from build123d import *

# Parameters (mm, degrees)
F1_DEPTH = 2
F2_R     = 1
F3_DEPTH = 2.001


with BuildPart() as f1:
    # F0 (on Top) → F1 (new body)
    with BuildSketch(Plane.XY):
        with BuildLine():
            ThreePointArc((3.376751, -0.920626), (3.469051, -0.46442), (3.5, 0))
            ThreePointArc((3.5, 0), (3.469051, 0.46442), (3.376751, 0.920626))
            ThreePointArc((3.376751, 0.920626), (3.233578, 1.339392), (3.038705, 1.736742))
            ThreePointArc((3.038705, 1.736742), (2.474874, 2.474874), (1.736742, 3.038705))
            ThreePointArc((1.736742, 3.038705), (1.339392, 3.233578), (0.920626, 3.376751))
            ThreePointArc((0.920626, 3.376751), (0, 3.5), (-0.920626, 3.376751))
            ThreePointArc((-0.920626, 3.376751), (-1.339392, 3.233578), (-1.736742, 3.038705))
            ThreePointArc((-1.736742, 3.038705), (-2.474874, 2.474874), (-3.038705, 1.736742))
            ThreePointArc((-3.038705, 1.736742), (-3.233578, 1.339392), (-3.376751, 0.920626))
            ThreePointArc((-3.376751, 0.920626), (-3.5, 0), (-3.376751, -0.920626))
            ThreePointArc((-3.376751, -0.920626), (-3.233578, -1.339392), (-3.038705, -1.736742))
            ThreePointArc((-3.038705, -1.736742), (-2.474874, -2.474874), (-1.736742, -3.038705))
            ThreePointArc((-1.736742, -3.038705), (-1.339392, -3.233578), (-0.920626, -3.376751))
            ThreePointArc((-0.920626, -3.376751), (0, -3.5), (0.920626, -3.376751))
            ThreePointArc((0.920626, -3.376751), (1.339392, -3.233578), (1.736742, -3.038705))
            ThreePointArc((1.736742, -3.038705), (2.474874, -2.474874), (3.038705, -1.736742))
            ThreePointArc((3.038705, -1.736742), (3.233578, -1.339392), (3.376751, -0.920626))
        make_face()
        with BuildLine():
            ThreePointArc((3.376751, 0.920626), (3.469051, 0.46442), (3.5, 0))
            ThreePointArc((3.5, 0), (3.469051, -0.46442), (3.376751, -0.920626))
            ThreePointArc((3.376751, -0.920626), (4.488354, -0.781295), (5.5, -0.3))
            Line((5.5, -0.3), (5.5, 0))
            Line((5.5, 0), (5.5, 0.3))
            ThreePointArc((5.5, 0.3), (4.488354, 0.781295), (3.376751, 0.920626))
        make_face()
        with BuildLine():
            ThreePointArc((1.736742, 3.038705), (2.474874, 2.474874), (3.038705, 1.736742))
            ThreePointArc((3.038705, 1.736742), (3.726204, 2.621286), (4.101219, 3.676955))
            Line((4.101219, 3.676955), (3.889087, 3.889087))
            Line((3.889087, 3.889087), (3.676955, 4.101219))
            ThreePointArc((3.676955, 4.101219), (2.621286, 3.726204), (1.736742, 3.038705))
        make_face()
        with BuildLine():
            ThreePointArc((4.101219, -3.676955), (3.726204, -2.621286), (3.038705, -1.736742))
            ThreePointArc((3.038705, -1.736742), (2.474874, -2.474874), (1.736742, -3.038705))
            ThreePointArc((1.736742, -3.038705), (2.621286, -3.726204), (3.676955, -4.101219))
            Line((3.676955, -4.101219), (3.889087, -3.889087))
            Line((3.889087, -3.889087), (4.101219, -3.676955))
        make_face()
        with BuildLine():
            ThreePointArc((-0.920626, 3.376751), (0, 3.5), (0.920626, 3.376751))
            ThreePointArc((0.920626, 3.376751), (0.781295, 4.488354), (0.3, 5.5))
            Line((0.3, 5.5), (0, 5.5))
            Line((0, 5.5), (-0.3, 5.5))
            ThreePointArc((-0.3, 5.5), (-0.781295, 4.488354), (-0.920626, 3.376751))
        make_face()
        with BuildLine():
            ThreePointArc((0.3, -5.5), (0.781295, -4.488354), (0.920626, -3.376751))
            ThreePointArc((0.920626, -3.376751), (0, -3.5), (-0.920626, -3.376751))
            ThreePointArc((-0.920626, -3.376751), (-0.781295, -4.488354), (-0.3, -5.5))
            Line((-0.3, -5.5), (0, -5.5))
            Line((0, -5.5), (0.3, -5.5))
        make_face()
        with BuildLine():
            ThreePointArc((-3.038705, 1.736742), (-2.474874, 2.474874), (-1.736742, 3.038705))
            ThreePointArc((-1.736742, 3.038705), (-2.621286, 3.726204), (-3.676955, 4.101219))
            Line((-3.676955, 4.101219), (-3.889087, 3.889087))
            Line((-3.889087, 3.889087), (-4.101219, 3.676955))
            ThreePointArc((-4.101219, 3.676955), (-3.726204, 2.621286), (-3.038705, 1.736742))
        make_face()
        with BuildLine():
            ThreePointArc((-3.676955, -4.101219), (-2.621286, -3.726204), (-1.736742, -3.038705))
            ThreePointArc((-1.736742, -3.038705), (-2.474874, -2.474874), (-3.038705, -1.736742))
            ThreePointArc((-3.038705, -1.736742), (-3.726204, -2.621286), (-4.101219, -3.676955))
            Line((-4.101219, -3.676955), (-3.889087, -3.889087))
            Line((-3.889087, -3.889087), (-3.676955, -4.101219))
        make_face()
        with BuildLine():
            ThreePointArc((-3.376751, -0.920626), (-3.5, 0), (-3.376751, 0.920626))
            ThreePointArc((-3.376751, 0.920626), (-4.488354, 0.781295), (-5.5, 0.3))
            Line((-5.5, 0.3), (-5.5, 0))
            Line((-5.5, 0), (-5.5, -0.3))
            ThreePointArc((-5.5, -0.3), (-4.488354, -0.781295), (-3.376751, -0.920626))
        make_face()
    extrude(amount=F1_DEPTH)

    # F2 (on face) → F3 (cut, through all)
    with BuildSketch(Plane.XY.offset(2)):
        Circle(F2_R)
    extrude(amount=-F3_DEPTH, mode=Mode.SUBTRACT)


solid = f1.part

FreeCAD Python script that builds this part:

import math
import FreeCAD as App
import Part
import Sketcher

doc = App.newDocument("Part")
body = doc.addObject("PartDesign::Body", "Body")

# Sketch on XY plane
sketch1 = body.newObject("Sketcher::SketchObject", "Sketch")
sketch1.AttachmentSupport = (doc.getObject("XY_Plane"), [""])
sketch1.MapMode = "FlatFace"
sketch1.addGeometry([
    Part.ArcOfCircle(Part.Circle(App.Vector(-0.000043, -0.000017, 0), App.Vector(0, 0, 1), 3.500046), math.radians(15.250368), math.radians(29.749594)),  # 0
    Part.ArcOfCircle(Part.Circle(App.Vector(0.636388, 4.313354, 0), App.Vector(0, 0, 1), 3.522791), math.radians(-47.004913), math.radians(-10.407738)),  # 1
    Part.LineSegment(App.Vector(4.101219, 3.676955, 0), App.Vector(3.676955, 4.101219, 0)),  # 2
    Part.ArcOfCircle(Part.Circle(App.Vector(4.313354, 0.636388, 0), App.Vector(0, 0, 1), 3.522791), math.radians(100.407738), math.radians(137.004913)),  # 3
    Part.ArcOfCircle(Part.Circle(App.Vector(-0.000017, -0.000043, 0), App.Vector(0, 0, 1), 3.500046), math.radians(60.250406), math.radians(74.749632)),  # 4
    Part.ArcOfCircle(Part.Circle(App.Vector(-2.599998, 3.500001, 0), App.Vector(0, 0, 1), 3.522781), math.radians(-2.004991), math.radians(34.59229)),  # 5
    Part.LineSegment(App.Vector(0.3, 5.5, 0), App.Vector(-0.3, 5.5, 0)),  # 6
    Part.ArcOfCircle(Part.Circle(App.Vector(2.599998, 3.500001, 0), App.Vector(0, 0, 1), 3.522781), math.radians(145.40771), math.radians(182.004991)),  # 7
    Part.ArcOfCircle(Part.Circle(App.Vector(0.000017, -0.000043, 0), App.Vector(0, 0, 1), 3.500046), math.radians(105.250368), math.radians(119.749594)),  # 8
    Part.ArcOfCircle(Part.Circle(App.Vector(-4.313354, 0.636388, 0), App.Vector(0, 0, 1), 3.522791), math.radians(42.995087), math.radians(79.592262)),  # 9
    Part.LineSegment(App.Vector(-3.676955, 4.101219, 0), App.Vector(-4.101219, 3.676955, 0)),  # 10
    Part.ArcOfCircle(Part.Circle(App.Vector(-0.636388, 4.313354, 0), App.Vector(0, 0, 1), 3.522791), math.radians(-169.592262), math.radians(-132.995087)),  # 11
    Part.ArcOfCircle(Part.Circle(App.Vector(0.000043, -0.000017, 0), App.Vector(0, 0, 1), 3.500046), math.radians(150.250406), math.radians(164.749632)),  # 12
    Part.ArcOfCircle(Part.Circle(App.Vector(-3.500001, -2.599998, 0), App.Vector(0, 0, 1), 3.522781), math.radians(87.995009), math.radians(124.59229)),  # 13
    Part.LineSegment(App.Vector(-5.5, 0.3, 0), App.Vector(-5.5, -0.3, 0)),  # 14
    Part.ArcOfCircle(Part.Circle(App.Vector(-3.500001, 2.599998, 0), App.Vector(0, 0, 1), 3.522781), math.radians(-124.59229), math.radians(-87.995009)),  # 15
    Part.ArcOfCircle(Part.Circle(App.Vector(0.000043, 0.000017, 0), App.Vector(0, 0, 1), 3.500046), math.radians(-164.749632), math.radians(-150.250406)),  # 16
    Part.ArcOfCircle(Part.Circle(App.Vector(-0.636388, -4.313354, 0), App.Vector(0, 0, 1), 3.522791), math.radians(132.995087), math.radians(169.592262)),  # 17
    Part.LineSegment(App.Vector(-4.101219, -3.676955, 0), App.Vector(-3.676955, -4.101219, 0)),  # 18
    Part.ArcOfCircle(Part.Circle(App.Vector(-4.313354, -0.636388, 0), App.Vector(0, 0, 1), 3.522791), math.radians(-79.592262), math.radians(-42.995087)),  # 19
    Part.ArcOfCircle(Part.Circle(App.Vector(0.000017, 0.000043, 0), App.Vector(0, 0, 1), 3.500046), math.radians(-119.749594), math.radians(-105.250368)),  # 20
    Part.ArcOfCircle(Part.Circle(App.Vector(2.599998, -3.500001, 0), App.Vector(0, 0, 1), 3.522781), math.radians(177.995009), math.radians(214.59229)),  # 21
    Part.LineSegment(App.Vector(-0.3, -5.5, 0), App.Vector(0.3, -5.5, 0)),  # 22
    Part.ArcOfCircle(Part.Circle(App.Vector(-2.599998, -3.500001, 0), App.Vector(0, 0, 1), 3.522781), math.radians(-34.59229), math.radians(2.004991)),  # 23
    Part.ArcOfCircle(Part.Circle(App.Vector(-0.000017, 0.000043, 0), App.Vector(0, 0, 1), 3.500046), math.radians(-74.749632), math.radians(-60.250406)),  # 24
    Part.ArcOfCircle(Part.Circle(App.Vector(4.313354, -0.636388, 0), App.Vector(0, 0, 1), 3.522791), math.radians(-137.004913), math.radians(-100.407738)),  # 25
    Part.LineSegment(App.Vector(3.676955, -4.101219, 0), App.Vector(4.101219, -3.676955, 0)),  # 26
    Part.ArcOfCircle(Part.Circle(App.Vector(0.636388, -4.313354, 0), App.Vector(0, 0, 1), 3.522791), math.radians(10.407738), math.radians(47.004913)),  # 27
    Part.ArcOfCircle(Part.Circle(App.Vector(-0.000043, 0.000017, 0), App.Vector(0, 0, 1), 3.500046), math.radians(-29.749594), math.radians(-15.250368)),  # 28
    Part.ArcOfCircle(Part.Circle(App.Vector(3.500001, 2.599998, 0), App.Vector(0, 0, 1), 3.522781), math.radians(-92.004991), math.radians(-55.40771)),  # 29
    Part.LineSegment(App.Vector(5.5, -0.3, 0), App.Vector(5.5, 0.3, 0)),  # 30
    Part.ArcOfCircle(Part.Circle(App.Vector(3.500001, -2.599998, 0), App.Vector(0, 0, 1), 3.522781), math.radians(55.40771), math.radians(92.004991)),  # 31
], False)
sketch1.addConstraint([
    Sketcher.Constraint("Coincident", 0, 2, 1, 1),
    Sketcher.Constraint("Coincident", 1, 2, 2, 1),
    Sketcher.Constraint("Coincident", 2, 2, 3, 1),
    Sketcher.Constraint("Coincident", 3, 2, 4, 1),
    Sketcher.Constraint("Coincident", 4, 2, 5, 1),
    Sketcher.Constraint("Coincident", 5, 2, 6, 1),
    Sketcher.Constraint("Coincident", 6, 2, 7, 1),
    Sketcher.Constraint("Coincident", 7, 2, 8, 1),
    Sketcher.Constraint("Coincident", 8, 2, 9, 1),
    Sketcher.Constraint("Coincident", 9, 2, 10, 1),
    Sketcher.Constraint("Coincident", 10, 2, 11, 1),
    Sketcher.Constraint("Coincident", 11, 2, 12, 1),
    Sketcher.Constraint("Coincident", 12, 2, 13, 1),
    Sketcher.Constraint("Coincident", 13, 2, 14, 1),
    Sketcher.Constraint("Coincident", 14, 2, 15, 1),
    Sketcher.Constraint("Coincident", 15, 2, 16, 1),
    Sketcher.Constraint("Coincident", 16, 2, 17, 1),
    Sketcher.Constraint("Coincident", 17, 2, 18, 1),
    Sketcher.Constraint("Coincident", 18, 2, 19, 1),
    Sketcher.Constraint("Coincident", 19, 2, 20, 1),
    Sketcher.Constraint("Coincident", 20, 2, 21, 1),
    Sketcher.Constraint("Coincident", 21, 2, 22, 1),
    Sketcher.Constraint("Coincident", 22, 2, 23, 1),
    Sketcher.Constraint("Coincident", 23, 2, 24, 1),
    Sketcher.Constraint("Coincident", 24, 2, 25, 1),
    Sketcher.Constraint("Coincident", 25, 2, 26, 1),
    Sketcher.Constraint("Coincident", 26, 2, 27, 1),
    Sketcher.Constraint("Coincident", 27, 2, 28, 1),
    Sketcher.Constraint("Coincident", 28, 2, 29, 1),
    Sketcher.Constraint("Coincident", 29, 2, 30, 1),
    Sketcher.Constraint("Coincident", 30, 2, 31, 1),
    Sketcher.Constraint("Coincident", 31, 2, 0, 1),
    Sketcher.Constraint("Horizontal", 6),
    Sketcher.Constraint("Vertical", 14),
    Sketcher.Constraint("Horizontal", 22),
    Sketcher.Constraint("Vertical", 30),
    Sketcher.Constraint("Equal", 1, 3),
    Sketcher.Constraint("Equal", 0, 4),
    Sketcher.Constraint("Equal", 5, 7),
    Sketcher.Constraint("Equal", 4, 8),
    Sketcher.Constraint("Equal", 3, 9),
    Sketcher.Constraint("Equal", 9, 11),
    Sketcher.Constraint("Equal", 8, 12),
    Sketcher.Constraint("Equal", 7, 13),
    Sketcher.Constraint("Equal", 13, 15),
    Sketcher.Constraint("Equal", 12, 16),
    Sketcher.Constraint("Equal", 11, 17),
    Sketcher.Constraint("Equal", 17, 19),
    Sketcher.Constraint("Equal", 16, 20),
    Sketcher.Constraint("Equal", 15, 21),
    Sketcher.Constraint("Equal", 21, 23),
    Sketcher.Constraint("Equal", 20, 24),
    Sketcher.Constraint("Equal", 19, 25),
    Sketcher.Constraint("Equal", 25, 27),
    Sketcher.Constraint("Equal", 24, 28),
    Sketcher.Constraint("Equal", 23, 29),
    Sketcher.Constraint("Equal", 29, 31),
    Sketcher.Constraint("Symmetric", 0, 3, 16, 3, -1, 1),
    Sketcher.Constraint("Symmetric", 1, 3, 17, 3, -1, 1),
    Sketcher.Constraint("Symmetric", 3, 3, 19, 3, -1, 1),
    Sketcher.Constraint("Symmetric", 4, 3, 20, 3, -1, 1),
    Sketcher.Constraint("Symmetric", 5, 3, 21, 3, -1, 1),
    Sketcher.Constraint("Symmetric", 7, 3, 23, 3, -1, 1),
    Sketcher.Constraint("Symmetric", 8, 3, 24, 3, -1, 1),
    Sketcher.Constraint("Symmetric", 9, 3, 25, 3, -1, 1),
    Sketcher.Constraint("Symmetric", 11, 3, 27, 3, -1, 1),
    Sketcher.Constraint("Symmetric", 12, 3, 28, 3, -1, 1),
    Sketcher.Constraint("Symmetric", 13, 3, 29, 3, -1, 1),
    Sketcher.Constraint("Symmetric", 15, 3, 31, 3, -1, 1),
    Sketcher.Constraint("Symmetric", 5, 3, 7, 3, -2),
    Sketcher.Constraint("Symmetric", 4, 3, 8, 3, -2),
    Sketcher.Constraint("Symmetric", 3, 3, 9, 3, -2),
    Sketcher.Constraint("Symmetric", 1, 3, 11, 3, -2),
    Sketcher.Constraint("Symmetric", 0, 3, 12, 3, -2),
    Sketcher.Constraint("Symmetric", 15, 3, 29, 3, -2),
    Sketcher.Constraint("Perpendicular", 2, 10),
    Sketcher.Constraint("Perpendicular", 10, 18),
    Sketcher.Constraint("Perpendicular", 18, 26),
    Sketcher.Constraint("Horizontal", 2, 2, 9, 2),
    Sketcher.Constraint("Horizontal", 1, 2, 10, 2),
    Sketcher.Constraint("Horizontal", 18, 2, 25, 2),
    Sketcher.Constraint("Horizontal", 14, 2, 29, 2),
    Sketcher.Constraint("Vertical", 10, 2, 17, 2),
    Sketcher.Constraint("Vertical", 6, 2, 21, 2),
    Sketcher.Constraint("Equal", 22, 14),
    Sketcher.Constraint("DistanceX", 6, 2, 6, 1, 0.6),
    Sketcher.Constraint("DistanceY", 7, 3, 5, 2, 1.999999),
    Sketcher.Constraint("DistanceX", 13, 2, 15, 3, 1.999999),
    Sketcher.Constraint("Distance", 2, 0.6),
    Sketcher.Constraint("DistanceX", 5, 3, -1, 1, 2.599998),
    Sketcher.Constraint("DistanceY", -1, 1, 5, 3, 3.500001),
    Sketcher.Constraint("DistanceX", 13, 3, -1, 1, 3.500001),
    Sketcher.Constraint("Radius", 1, 3.522791),
    Sketcher.Constraint("Radius", 0, 3.500046),
    Sketcher.Constraint("DistanceY", 1, 2, 1, 3, 0.636399),
    Sketcher.Constraint("DistanceX", -1, 1, 1, 3, 0.636388),
    Sketcher.Constraint("DistanceY", -1, 1, 3, 3, 0.636388),
    Sketcher.Constraint("DistanceY", -1, 1, 2, 2, 4.101219),
    Sketcher.Constraint("DistanceY", -1, 1, 4, 2, 3.376751),
    Sketcher.Constraint("DistanceX", 12, 2, -1, 1, 3.376751),
    Sketcher.Constraint("DistanceX", 0, 3, 1, 3, 0.636431),
    Sketcher.Constraint("DistanceX", 4, 3, 3, 3, 4.313371),
])
pad1 = body.newObject("PartDesign::Pad", "Pad")
pad1.Profile = sketch1
pad1.Length = 2

# Sketch on XY plane
sketch2 = body.newObject("Sketcher::SketchObject", "Sketch001")
sketch2.AttachmentSupport = (doc.getObject("XY_Plane"), [""])
sketch2.MapMode = "FlatFace"
sketch2.AttachmentOffset = App.Placement(App.Vector(0, 0, 2), App.Rotation())
sketch2.addGeometry(Part.Circle(App.Vector(0, 0, 0), App.Vector(0, 0, 1), 1), False)
sketch2.addConstraint([
    Sketcher.Constraint("Coincident", 0, 3, -1, 1),
    Sketcher.Constraint("Diameter", 0, 2.0),
])
pocket1 = body.newObject("PartDesign::Pocket", "Pocket")
pocket1.Profile = sketch2
pocket1.Type = "ThroughAll"

doc.recompute()
